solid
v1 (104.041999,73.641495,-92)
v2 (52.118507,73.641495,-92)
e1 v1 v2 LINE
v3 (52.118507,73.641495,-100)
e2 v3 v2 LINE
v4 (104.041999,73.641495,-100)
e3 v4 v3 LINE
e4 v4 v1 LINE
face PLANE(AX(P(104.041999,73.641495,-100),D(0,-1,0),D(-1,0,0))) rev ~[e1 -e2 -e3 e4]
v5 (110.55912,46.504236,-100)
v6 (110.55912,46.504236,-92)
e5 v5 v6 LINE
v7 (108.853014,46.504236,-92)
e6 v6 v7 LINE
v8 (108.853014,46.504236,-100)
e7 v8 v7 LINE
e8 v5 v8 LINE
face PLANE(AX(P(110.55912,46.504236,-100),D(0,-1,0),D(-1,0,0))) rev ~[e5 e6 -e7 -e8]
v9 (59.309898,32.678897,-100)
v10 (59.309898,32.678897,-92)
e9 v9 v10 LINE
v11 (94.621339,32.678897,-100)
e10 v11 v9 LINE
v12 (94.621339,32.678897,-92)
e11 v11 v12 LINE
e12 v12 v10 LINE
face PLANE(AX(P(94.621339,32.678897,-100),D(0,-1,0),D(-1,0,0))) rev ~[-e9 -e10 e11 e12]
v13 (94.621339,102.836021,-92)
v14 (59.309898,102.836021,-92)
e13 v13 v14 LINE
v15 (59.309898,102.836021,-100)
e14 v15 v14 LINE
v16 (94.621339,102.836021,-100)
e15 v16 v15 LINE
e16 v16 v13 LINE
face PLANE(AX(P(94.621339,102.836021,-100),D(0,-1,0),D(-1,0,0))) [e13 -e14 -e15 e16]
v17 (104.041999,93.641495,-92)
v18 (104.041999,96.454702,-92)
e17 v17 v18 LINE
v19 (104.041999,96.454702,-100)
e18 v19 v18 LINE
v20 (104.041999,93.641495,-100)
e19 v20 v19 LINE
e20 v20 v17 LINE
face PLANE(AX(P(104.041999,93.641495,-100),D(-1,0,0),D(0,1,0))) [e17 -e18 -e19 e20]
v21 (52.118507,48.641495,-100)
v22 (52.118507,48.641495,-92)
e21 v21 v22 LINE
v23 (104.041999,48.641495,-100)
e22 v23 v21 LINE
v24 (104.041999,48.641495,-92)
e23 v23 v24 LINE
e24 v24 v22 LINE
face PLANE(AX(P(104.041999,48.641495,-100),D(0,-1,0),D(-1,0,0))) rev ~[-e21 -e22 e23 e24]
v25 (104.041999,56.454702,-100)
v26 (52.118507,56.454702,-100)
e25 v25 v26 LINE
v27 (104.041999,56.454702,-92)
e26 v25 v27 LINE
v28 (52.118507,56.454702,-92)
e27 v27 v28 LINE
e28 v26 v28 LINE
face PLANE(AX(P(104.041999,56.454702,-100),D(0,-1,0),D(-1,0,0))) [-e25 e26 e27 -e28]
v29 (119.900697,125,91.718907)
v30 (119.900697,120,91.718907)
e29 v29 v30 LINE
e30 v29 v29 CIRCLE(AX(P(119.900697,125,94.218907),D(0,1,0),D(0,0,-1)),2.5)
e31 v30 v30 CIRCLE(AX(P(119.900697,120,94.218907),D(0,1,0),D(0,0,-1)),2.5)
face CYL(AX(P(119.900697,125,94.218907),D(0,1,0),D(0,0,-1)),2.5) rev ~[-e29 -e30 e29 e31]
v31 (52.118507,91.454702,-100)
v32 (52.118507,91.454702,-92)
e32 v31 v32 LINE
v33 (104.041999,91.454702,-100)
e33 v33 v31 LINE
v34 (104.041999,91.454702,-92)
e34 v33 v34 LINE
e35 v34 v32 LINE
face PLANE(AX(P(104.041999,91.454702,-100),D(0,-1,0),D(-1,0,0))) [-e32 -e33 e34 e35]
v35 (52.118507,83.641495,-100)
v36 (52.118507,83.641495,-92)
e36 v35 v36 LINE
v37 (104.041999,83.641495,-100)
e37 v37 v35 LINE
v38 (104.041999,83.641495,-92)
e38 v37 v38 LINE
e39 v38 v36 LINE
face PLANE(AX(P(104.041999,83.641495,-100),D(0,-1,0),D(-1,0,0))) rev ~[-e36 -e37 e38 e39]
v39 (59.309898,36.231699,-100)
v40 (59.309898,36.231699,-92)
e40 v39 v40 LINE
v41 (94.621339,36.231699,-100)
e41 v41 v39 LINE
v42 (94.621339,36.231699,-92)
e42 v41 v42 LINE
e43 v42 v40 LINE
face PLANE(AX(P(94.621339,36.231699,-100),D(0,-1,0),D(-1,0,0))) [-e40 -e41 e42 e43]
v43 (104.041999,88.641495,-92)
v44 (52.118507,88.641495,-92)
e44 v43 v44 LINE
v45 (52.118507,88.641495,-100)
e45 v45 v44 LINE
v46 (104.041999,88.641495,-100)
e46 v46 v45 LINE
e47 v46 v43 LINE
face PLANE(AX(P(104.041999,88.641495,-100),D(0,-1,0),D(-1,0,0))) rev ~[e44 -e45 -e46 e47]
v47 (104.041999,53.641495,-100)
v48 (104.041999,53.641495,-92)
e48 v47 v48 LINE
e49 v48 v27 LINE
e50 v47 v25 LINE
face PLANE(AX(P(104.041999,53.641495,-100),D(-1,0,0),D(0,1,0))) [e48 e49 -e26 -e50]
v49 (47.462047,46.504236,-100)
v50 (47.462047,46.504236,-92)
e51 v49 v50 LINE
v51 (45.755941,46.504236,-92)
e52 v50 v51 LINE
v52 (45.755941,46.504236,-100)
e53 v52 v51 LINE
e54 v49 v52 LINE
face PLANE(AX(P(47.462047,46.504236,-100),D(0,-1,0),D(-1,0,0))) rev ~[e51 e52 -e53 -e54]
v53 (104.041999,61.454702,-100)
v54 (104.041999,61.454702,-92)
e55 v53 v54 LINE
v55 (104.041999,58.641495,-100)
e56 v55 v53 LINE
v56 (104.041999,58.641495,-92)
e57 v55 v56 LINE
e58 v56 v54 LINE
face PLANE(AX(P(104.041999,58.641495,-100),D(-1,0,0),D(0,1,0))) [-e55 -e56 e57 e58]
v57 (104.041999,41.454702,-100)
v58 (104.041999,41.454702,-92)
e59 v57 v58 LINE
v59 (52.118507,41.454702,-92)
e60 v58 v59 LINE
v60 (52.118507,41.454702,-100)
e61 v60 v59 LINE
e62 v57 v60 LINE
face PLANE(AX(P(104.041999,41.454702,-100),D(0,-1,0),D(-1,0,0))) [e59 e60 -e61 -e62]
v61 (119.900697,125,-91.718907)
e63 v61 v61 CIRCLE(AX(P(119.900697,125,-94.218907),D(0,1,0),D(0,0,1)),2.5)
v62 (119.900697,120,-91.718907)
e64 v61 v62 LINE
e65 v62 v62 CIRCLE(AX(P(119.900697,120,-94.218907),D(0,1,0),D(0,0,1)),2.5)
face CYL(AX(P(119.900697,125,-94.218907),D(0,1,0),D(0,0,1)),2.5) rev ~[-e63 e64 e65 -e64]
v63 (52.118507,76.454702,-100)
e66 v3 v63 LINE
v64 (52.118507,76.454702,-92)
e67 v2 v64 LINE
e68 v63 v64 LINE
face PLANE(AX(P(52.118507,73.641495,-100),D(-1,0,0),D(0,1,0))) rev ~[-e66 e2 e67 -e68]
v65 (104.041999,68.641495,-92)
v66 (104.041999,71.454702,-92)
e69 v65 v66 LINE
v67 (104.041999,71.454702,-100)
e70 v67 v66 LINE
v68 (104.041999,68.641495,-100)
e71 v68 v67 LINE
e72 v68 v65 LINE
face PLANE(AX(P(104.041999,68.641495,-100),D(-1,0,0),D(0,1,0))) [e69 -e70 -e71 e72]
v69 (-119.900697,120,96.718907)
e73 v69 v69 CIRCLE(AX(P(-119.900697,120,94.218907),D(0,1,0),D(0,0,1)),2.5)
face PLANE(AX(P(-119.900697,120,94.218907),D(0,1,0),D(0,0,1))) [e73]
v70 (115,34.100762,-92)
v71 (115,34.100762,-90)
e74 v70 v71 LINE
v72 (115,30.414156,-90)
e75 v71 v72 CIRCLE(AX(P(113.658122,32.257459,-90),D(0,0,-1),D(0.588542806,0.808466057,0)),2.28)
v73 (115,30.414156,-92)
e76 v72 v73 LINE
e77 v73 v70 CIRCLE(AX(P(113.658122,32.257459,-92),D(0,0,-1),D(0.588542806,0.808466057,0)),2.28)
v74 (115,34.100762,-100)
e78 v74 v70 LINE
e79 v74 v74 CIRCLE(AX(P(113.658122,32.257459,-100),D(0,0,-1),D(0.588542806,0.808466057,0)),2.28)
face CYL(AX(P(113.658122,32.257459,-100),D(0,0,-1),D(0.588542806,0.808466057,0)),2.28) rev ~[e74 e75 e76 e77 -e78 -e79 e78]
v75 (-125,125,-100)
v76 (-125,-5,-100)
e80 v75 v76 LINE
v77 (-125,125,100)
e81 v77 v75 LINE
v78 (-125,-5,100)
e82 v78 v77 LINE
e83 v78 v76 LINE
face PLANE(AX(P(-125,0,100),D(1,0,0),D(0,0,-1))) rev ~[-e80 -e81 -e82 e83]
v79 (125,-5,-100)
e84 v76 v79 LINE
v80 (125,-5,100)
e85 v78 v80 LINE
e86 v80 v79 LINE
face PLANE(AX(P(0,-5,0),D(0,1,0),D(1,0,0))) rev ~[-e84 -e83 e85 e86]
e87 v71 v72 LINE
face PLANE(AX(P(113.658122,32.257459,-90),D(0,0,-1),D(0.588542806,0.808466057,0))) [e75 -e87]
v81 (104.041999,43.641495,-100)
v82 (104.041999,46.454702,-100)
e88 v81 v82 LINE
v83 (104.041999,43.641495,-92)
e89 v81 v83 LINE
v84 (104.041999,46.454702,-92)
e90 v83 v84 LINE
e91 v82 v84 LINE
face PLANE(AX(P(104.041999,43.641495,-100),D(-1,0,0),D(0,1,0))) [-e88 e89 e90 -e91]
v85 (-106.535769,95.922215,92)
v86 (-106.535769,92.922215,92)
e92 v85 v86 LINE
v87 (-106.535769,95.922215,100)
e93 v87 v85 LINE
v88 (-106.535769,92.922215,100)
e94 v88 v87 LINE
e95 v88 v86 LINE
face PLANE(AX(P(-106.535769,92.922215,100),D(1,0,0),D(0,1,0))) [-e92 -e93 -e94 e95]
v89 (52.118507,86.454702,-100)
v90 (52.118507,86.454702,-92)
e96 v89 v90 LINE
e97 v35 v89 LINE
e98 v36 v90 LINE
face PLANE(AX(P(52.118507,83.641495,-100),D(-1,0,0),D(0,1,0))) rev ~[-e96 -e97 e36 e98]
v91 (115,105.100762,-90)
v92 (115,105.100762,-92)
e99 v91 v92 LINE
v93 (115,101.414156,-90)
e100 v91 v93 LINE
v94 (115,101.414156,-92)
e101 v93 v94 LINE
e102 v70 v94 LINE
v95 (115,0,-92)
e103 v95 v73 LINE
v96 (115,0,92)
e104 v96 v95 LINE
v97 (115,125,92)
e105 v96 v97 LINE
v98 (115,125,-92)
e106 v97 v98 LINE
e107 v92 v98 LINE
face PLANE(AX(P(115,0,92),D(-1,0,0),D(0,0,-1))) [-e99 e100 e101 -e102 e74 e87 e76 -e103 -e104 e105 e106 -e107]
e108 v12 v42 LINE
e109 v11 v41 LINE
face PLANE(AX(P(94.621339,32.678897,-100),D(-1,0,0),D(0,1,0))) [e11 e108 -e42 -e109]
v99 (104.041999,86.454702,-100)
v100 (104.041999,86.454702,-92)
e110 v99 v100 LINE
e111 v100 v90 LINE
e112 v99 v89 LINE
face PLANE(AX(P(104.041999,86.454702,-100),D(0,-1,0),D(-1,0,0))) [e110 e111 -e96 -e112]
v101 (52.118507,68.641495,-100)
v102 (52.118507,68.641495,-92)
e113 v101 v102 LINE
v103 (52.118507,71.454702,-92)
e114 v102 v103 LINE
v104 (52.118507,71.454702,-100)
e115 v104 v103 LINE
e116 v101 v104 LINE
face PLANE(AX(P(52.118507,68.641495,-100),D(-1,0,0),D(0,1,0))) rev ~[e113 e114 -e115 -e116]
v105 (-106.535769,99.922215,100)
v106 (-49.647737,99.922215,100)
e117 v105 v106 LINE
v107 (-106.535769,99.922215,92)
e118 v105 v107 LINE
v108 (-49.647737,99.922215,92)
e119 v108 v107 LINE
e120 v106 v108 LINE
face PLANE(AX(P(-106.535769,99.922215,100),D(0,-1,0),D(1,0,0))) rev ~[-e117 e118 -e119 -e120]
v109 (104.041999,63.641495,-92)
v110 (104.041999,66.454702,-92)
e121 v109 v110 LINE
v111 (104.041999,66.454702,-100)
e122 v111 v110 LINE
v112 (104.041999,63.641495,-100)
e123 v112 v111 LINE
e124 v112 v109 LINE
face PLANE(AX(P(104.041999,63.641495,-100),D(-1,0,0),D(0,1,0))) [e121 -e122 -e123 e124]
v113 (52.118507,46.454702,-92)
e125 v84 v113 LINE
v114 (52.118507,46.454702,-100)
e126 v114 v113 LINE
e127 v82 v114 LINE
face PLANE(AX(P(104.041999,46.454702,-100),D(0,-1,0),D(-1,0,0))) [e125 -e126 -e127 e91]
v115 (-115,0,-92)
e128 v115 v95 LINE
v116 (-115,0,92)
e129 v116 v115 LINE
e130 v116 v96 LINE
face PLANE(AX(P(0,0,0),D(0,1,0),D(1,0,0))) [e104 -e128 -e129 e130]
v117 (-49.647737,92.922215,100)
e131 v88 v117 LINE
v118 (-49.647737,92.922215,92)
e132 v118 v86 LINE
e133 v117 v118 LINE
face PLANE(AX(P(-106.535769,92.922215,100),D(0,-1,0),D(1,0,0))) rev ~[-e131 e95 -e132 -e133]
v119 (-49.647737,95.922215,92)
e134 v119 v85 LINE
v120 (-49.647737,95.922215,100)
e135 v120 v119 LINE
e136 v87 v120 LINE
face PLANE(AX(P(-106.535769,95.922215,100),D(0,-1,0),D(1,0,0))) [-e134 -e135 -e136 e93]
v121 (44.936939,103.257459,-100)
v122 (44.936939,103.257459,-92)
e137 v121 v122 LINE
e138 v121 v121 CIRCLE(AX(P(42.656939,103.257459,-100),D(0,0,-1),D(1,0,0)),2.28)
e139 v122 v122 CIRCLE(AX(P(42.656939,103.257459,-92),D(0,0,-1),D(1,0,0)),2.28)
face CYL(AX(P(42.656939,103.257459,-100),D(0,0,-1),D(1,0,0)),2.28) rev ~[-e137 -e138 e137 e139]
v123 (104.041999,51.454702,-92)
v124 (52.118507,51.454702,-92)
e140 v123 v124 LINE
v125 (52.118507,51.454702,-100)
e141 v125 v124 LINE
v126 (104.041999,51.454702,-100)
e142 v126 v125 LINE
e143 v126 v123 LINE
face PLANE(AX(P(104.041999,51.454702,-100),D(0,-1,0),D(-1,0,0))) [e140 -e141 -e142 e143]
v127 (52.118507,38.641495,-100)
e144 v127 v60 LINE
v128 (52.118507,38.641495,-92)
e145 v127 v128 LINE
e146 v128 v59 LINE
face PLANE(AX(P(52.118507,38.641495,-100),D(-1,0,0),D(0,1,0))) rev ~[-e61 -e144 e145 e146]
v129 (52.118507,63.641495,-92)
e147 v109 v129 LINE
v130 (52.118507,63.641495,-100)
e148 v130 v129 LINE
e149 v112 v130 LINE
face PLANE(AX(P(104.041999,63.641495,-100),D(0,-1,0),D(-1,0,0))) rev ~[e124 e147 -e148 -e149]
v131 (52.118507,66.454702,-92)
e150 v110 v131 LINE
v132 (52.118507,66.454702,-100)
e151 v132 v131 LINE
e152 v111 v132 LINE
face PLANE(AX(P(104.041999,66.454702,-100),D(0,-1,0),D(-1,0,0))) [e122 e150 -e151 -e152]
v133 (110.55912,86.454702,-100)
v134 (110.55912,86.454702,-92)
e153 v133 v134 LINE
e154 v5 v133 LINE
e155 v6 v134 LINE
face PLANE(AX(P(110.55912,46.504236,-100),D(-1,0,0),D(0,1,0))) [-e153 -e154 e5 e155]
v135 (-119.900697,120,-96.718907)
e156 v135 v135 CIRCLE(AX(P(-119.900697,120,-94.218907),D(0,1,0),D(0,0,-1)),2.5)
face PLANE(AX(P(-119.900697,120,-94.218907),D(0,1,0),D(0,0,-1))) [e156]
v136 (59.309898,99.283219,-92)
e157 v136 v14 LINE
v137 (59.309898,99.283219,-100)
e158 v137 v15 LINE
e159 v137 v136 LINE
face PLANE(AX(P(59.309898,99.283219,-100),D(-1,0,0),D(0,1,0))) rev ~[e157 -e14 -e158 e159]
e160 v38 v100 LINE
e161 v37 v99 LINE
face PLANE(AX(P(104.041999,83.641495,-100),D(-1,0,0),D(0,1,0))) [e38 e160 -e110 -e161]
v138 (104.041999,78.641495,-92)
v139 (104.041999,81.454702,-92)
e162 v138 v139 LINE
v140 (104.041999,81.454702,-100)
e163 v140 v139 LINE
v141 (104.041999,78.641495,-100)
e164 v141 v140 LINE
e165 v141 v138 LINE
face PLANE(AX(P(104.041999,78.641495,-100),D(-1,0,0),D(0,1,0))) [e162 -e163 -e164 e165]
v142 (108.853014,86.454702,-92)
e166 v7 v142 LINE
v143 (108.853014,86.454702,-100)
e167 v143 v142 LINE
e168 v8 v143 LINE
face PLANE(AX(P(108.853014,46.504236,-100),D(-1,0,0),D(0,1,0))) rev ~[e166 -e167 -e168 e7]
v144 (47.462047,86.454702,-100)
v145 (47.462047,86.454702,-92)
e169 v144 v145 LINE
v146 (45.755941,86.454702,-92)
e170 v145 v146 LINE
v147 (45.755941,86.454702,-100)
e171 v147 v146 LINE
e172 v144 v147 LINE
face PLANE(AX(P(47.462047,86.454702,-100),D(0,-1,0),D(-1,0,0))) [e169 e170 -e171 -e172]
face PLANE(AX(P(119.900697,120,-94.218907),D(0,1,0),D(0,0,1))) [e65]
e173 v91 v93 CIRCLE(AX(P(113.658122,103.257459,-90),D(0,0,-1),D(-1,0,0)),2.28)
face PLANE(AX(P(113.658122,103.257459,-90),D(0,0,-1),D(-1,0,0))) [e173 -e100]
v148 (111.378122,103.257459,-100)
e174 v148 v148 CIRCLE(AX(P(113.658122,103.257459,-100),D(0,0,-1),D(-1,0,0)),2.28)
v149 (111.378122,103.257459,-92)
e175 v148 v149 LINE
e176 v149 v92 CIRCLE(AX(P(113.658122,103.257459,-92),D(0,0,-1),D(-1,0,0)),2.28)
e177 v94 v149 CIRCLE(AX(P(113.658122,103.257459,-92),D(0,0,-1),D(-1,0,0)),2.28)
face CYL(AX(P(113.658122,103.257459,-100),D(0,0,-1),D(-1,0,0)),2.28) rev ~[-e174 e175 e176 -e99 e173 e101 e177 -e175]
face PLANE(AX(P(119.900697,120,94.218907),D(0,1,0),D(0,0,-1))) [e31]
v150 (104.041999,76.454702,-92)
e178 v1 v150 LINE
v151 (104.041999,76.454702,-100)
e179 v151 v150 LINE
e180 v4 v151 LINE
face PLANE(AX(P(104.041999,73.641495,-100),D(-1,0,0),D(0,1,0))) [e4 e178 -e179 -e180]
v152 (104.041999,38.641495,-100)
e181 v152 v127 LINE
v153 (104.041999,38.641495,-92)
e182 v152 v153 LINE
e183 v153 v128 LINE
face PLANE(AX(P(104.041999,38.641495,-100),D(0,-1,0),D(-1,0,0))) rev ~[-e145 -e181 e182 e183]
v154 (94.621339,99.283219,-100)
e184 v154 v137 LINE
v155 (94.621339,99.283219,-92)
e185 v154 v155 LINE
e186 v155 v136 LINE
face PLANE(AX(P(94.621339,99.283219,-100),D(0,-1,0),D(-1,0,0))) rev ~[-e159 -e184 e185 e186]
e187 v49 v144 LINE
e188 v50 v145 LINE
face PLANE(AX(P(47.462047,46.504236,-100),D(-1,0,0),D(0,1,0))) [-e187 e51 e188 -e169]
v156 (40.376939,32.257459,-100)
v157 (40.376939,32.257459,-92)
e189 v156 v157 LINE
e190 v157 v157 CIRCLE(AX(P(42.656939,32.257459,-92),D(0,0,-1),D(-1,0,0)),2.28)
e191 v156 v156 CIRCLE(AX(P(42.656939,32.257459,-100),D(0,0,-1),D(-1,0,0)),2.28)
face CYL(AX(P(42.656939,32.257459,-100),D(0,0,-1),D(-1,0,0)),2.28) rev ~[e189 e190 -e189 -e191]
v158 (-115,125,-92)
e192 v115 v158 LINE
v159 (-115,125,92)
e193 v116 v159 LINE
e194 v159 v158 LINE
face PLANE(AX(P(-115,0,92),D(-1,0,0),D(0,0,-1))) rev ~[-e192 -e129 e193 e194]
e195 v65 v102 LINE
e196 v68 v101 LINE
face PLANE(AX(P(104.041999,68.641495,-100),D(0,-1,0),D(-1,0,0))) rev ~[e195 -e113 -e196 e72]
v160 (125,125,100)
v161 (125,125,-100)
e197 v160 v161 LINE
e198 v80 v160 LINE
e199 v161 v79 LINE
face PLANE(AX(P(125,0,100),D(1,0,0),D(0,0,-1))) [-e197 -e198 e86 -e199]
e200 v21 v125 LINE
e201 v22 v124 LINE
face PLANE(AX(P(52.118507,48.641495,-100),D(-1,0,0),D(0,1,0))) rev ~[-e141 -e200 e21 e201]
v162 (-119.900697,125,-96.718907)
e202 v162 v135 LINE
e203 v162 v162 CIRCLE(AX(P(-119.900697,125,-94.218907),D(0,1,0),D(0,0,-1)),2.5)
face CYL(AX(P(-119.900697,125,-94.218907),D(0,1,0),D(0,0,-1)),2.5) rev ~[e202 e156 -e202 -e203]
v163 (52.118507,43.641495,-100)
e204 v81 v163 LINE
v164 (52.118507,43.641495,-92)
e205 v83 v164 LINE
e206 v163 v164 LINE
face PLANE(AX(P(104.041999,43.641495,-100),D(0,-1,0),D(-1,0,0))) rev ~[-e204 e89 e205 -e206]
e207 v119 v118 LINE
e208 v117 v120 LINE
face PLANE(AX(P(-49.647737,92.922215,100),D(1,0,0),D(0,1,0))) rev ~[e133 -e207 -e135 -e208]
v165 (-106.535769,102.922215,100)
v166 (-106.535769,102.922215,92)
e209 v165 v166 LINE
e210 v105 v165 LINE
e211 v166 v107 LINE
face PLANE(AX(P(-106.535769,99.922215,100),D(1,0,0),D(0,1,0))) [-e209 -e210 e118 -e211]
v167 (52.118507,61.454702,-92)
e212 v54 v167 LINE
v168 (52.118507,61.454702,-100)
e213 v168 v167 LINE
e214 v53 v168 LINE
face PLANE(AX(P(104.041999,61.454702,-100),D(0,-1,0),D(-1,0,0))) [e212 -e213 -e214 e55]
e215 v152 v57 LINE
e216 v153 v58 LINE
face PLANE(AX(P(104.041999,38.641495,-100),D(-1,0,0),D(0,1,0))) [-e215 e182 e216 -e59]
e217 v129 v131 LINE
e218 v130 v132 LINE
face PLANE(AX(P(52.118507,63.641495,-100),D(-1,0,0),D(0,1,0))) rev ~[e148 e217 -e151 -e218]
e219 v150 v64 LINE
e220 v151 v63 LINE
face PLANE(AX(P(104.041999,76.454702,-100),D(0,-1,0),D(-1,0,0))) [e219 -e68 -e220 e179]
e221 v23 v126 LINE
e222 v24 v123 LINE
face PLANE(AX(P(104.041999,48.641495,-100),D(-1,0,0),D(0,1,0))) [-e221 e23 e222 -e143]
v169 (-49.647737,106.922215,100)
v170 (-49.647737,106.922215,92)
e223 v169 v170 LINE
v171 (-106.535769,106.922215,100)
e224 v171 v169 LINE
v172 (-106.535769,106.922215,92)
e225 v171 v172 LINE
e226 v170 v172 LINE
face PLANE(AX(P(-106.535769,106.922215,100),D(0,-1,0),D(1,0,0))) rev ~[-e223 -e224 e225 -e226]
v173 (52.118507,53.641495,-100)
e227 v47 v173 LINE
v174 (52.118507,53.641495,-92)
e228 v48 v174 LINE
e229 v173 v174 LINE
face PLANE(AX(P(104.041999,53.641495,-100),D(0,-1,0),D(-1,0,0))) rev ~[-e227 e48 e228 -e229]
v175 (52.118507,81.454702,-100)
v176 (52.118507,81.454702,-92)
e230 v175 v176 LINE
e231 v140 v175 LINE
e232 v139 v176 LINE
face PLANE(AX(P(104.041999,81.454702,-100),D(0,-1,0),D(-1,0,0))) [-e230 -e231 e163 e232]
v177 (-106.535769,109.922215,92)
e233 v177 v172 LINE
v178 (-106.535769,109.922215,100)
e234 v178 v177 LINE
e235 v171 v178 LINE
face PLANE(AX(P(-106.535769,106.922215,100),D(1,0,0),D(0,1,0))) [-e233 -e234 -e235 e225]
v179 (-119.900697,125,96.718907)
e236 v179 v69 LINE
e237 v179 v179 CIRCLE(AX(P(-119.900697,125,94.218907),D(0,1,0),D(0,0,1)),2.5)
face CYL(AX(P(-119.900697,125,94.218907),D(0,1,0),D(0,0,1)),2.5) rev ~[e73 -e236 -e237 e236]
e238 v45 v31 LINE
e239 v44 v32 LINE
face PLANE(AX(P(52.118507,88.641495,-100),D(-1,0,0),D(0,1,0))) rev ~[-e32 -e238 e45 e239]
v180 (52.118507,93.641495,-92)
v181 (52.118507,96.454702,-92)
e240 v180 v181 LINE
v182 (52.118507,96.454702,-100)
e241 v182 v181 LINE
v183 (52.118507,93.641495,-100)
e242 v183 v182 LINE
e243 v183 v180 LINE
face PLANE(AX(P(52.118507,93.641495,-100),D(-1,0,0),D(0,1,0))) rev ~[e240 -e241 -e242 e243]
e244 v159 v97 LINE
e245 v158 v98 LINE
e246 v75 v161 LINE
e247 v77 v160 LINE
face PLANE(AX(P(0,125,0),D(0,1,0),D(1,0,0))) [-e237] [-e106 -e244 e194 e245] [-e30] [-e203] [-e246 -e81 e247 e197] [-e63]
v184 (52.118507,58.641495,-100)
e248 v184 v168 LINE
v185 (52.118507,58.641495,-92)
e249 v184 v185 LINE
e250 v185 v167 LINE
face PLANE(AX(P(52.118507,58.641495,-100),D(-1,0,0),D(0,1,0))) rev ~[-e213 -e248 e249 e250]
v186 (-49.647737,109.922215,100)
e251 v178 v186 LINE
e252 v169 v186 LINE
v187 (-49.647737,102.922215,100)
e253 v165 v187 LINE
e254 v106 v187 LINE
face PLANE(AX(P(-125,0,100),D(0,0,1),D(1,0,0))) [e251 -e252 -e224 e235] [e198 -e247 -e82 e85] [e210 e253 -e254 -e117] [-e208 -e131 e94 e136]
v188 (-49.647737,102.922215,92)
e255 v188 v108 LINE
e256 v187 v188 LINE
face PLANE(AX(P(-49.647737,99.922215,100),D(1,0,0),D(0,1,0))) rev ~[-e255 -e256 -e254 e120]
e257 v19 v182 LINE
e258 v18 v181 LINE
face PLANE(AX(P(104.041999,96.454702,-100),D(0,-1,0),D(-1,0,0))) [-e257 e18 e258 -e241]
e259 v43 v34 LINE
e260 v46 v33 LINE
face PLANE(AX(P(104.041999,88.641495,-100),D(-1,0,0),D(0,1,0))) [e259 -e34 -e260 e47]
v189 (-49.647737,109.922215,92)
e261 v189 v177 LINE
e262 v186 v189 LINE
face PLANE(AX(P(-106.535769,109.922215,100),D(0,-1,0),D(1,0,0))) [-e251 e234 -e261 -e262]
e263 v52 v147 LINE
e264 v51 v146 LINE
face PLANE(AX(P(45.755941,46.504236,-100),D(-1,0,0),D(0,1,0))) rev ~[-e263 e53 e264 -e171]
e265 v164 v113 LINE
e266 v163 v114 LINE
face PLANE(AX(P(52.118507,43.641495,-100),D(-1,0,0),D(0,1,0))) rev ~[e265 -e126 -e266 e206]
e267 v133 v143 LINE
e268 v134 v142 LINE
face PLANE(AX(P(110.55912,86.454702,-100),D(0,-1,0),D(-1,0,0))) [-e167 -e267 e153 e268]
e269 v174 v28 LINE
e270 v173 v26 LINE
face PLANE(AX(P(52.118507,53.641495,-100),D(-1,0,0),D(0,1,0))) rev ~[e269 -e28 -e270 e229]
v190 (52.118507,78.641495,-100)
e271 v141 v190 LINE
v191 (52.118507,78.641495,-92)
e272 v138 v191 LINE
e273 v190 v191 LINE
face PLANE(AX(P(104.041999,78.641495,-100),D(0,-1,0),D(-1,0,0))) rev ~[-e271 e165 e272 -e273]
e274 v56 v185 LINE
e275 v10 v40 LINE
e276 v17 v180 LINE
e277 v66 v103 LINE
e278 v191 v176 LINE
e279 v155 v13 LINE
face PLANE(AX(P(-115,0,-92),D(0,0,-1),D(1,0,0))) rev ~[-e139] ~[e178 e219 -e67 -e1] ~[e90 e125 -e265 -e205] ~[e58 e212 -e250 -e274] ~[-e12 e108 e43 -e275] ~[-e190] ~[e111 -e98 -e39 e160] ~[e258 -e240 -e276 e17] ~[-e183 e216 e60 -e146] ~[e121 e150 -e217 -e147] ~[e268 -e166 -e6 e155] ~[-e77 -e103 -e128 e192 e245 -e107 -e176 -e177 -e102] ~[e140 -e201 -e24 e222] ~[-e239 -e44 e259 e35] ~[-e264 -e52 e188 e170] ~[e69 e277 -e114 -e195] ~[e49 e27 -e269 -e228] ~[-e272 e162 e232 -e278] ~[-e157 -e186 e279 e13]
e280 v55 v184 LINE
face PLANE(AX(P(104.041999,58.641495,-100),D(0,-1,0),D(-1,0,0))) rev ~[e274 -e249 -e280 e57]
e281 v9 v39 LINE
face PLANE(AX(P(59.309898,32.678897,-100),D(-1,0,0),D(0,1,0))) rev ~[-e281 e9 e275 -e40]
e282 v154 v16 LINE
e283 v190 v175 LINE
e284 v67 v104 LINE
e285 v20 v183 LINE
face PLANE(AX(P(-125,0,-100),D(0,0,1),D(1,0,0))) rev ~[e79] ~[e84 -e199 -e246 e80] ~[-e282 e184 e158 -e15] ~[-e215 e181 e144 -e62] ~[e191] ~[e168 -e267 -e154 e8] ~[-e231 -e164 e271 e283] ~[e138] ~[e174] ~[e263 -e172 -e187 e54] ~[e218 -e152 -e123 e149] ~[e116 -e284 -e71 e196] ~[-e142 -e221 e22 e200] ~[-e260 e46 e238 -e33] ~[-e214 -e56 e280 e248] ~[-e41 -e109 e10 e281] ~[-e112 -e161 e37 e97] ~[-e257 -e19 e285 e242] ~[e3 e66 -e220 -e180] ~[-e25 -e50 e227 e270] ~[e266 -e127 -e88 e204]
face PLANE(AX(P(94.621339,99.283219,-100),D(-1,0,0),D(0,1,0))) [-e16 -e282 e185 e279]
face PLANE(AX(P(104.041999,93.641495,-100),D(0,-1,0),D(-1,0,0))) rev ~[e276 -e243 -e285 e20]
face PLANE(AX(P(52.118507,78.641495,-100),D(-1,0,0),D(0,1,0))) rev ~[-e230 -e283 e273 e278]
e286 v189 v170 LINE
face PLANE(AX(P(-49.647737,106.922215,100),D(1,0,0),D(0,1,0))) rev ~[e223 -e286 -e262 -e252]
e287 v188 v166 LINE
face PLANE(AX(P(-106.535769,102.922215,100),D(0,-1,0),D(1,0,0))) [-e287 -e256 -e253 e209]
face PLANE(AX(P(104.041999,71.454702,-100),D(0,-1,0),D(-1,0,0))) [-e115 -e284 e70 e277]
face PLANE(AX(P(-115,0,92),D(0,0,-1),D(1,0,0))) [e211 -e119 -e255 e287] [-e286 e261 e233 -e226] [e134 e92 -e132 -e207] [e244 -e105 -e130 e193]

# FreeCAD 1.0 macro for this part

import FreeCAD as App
import Part
import Sketcher
from FreeCAD import Vector

doc = App.newDocument("Part")
body = doc.addObject("PartDesign::Body", "Body")

sketch1 = body.newObject("Sketcher::SketchObject", "Sketch")
sketch1.AttachmentSupport = (doc.getObject("XZ_Plane"), [""])
sketch1.MapMode = "FlatFace"
sketch1.addGeometry([
    Part.LineSegment(Vector(-125, -100, 0), Vector(-125, 100, 0)),
    Part.LineSegment(Vector(-125, 100, 0), Vector(125, 100, 0)),
    Part.LineSegment(Vector(125, 100, 0), Vector(125, -100, 0)),
    Part.LineSegment(Vector(125, -100, 0), Vector(-125, -100, 0)),
    Part.LineSegment(Vector(115, 92, 0), Vector(-115, 92, 0)),
    Part.LineSegment(Vector(-115, 92, 0), Vector(-115, -92, 0)),
    Part.LineSegment(Vector(-115, -92, 0), Vector(115, -92, 0)),
    Part.LineSegment(Vector(115, -92, 0), Vector(115, 92, 0)),
], False)
sketch1.addConstraint([
    Sketcher.Constraint("Coincident", 0, 2, 1, 1),
    Sketcher.Constraint("Coincident", 1, 2, 2, 1),
    Sketcher.Constraint("Coincident", 2, 2, 3, 1),
    Sketcher.Constraint("Coincident", 3, 2, 0, 1),
    Sketcher.Constraint("Coincident", 4, 2, 5, 1),
    Sketcher.Constraint("Coincident", 5, 2, 6, 1),
    Sketcher.Constraint("Coincident", 6, 2, 7, 1),
    Sketcher.Constraint("Coincident", 7, 2, 4, 1),
    Sketcher.Constraint("Vertical", 0),
    Sketcher.Constraint("Horizontal", 1),
    Sketcher.Constraint("Vertical", 2),
    Sketcher.Constraint("Horizontal", 3),
    Sketcher.Constraint("Horizontal", 4),
    Sketcher.Constraint("Vertical", 5),
    Sketcher.Constraint("Horizontal", 6),
    Sketcher.Constraint("Vertical", 7),
    Sketcher.Constraint("Symmetric", 0, 2, 2, 2, -1, 1),
    Sketcher.Constraint("Symmetric", 4, 2, 6, 2, -1, 1),
    Sketcher.Constraint("DistanceX", 1, 1, 1, 2, 250.0),
    Sketcher.Constraint("DistanceX", 4, 2, 4, 1, 230.0),
    Sketcher.Constraint("DistanceY", 0, 1, 0, 2, 200.0),
    Sketcher.Constraint("DistanceY", 5, 2, 5, 1, 184.0),
])
pad1 = body.newObject("PartDesign::Pad", "Pad")
pad1.Profile = sketch1
pad1.Length = 125
pad1.Reversed = True

sketch2 = body.newObject("Sketcher::SketchObject", "Sketch001")
sketch2.AttachmentSupport = (doc.getObject("XZ_Plane"), [""])
sketch2.MapMode = "FlatFace"
sketch2.addGeometry([
    Part.LineSegment(Vector(-125, -100, 0), Vector(-125, 100, 0)),
    Part.LineSegment(Vector(-125, 100, 0), Vector(125, 100, 0)),
    Part.LineSegment(Vector(125, 100, 0), Vector(125, -100, 0)),
    Part.LineSegment(Vector(125, -100, 0), Vector(-125, -100, 0)),
], False)
sketch2.addConstraint([
    Sketcher.Constraint("Coincident", 0, 2, 1, 1),
    Sketcher.Constraint("Coincident", 1, 2, 2, 1),
    Sketcher.Constraint("Coincident", 2, 2, 3, 1),
    Sketcher.Constraint("Coincident", 3, 2, 0, 1),
    Sketcher.Constraint("Vertical", 0),
    Sketcher.Constraint("Horizontal", 1),
    Sketcher.Constraint("Vertical", 2),
    Sketcher.Constraint("Horizontal", 3),
    Sketcher.Constraint("Symmetric", 0, 2, 2, 2, -1, 1),
    Sketcher.Constraint("DistanceX", 1, 1, 1, 2, 250.0),
    Sketcher.Constraint("DistanceY", 0, 1, 0, 2, 200.0),
])
pad2 = body.newObject("PartDesign::Pad", "Pad001")
pad2.Profile = sketch2
pad2.Length = 5

sketch3 = body.newObject("Sketcher::SketchObject", "Sketch002")
sketch3.AttachmentSupport = (doc.getObject("XZ_Plane"), [""])
sketch3.MapMode = "FlatFace"
sketch3.AttachmentOffset = App.Placement(Vector(0, 0, -125), App.Rotation())
sketch3.addGeometry([
    Part.Circle(Vector(-119.9, 94.2, 0), Vector(0, 0, 1), 2.5),
    Part.Circle(Vector(-119.9, -94.2, 0), Vector(0, 0, 1), 2.5),
    Part.Circle(Vector(119.9, -94.2, 0), Vector(0, 0, 1), 2.5),
    Part.Circle(Vector(119.9, 94.2, 0), Vector(0, 0, 1), 2.5),
], False)
sketch3.addConstraint([
    Sketcher.Constraint("Equal", 0, 1),
    Sketcher.Constraint("Equal", 1, 2),
    Sketcher.Constraint("Equal", 2, 3),
    Sketcher.Constraint("Symmetric", 0, 3, 2, 3, -1, 1),
    Sketcher.Constraint("Symmetric", 1, 3, 3, 3, -1, 1),
    Sketcher.Constraint("Symmetric", 1, 3, 2, 3, -2),
    Sketcher.Constraint("Diameter", 0, 5.0),
    Sketcher.Constraint("DistanceX", 0, 3, -1, 1, 119.900697),
    Sketcher.Constraint("DistanceY", -1, 1, 0, 3, 94.218907),
])
pocket1 = body.newObject("PartDesign::Pocket", "Pocket")
pocket1.Profile = sketch3
pocket1.Length = 5
pocket1.Reversed = True

sketch4 = body.newObject("Sketcher::SketchObject", "Sketch003")
sketch4.AttachmentSupport = (doc.getObject("XY_Plane"), [""])
sketch4.MapMode = "FlatFace"
sketch4.AttachmentOffset = App.Placement(Vector(0, 0, 100), App.Rotation())
sketch4.addGeometry([
    Part.LineSegment(Vector(-106.5, 109.9, 0), Vector(-106.5, 106.9, 0)),
    Part.LineSegment(Vector(-106.5, 106.9, 0), Vector(-49.6, 106.9, 0)),
    Part.LineSegment(Vector(-49.6, 106.9, 0), Vector(-49.6, 109.9, 0)),
    Part.LineSegment(Vector(-49.6, 109.9, 0), Vector(-106.5, 109.9, 0)),
    Part.LineSegment(Vector(-106.5, 102.9, 0), Vector(-106.5, 99.9, 0)),
    Part.LineSegment(Vector(-106.5, 99.9, 0), Vector(-49.6, 99.9, 0)),
    Part.LineSegment(Vector(-49.6, 99.9, 0), Vector(-49.6, 102.9, 0)),
    Part.LineSegment(Vector(-49.6, 102.9, 0), Vector(-106.5, 102.9, 0)),
    Part.LineSegment(Vector(-106.5, 95.9, 0), Vector(-106.5, 92.9, 0)),
    Part.LineSegment(Vector(-106.5, 92.9, 0), Vector(-49.6, 92.9, 0)),
    Part.LineSegment(Vector(-49.6, 92.9, 0), Vector(-49.6, 95.9, 0)),
    Part.LineSegment(Vector(-49.6, 95.9, 0), Vector(-106.5, 95.9, 0)),
], False)
sketch4.addConstraint([
    Sketcher.Constraint("Coincident", 0, 2, 1, 1),
    Sketcher.Constraint("Coincident", 1, 2, 2, 1),
    Sketcher.Constraint("Coincident", 2, 2, 3, 1),
    Sketcher.Constraint("Coincident", 3, 2, 0, 1),
    Sketcher.Constraint("Coincident", 4, 2, 5, 1),
    Sketcher.Constraint("Coincident", 5, 2, 6, 1),
    Sketcher.Constraint("Coincident", 6, 2, 7, 1),
    Sketcher.Constraint("Coincident", 7, 2, 4, 1),
    Sketcher.Constraint("Coincident", 8, 2, 9, 1),
    Sketcher.Constraint("Coincident", 9, 2, 10, 1),
    Sketcher.Constraint("Coincident", 10, 2, 11, 1),
    Sketcher.Constraint("Coincident", 11, 2, 8, 1),
    Sketcher.Constraint("Vertical", 0),
    Sketcher.Constraint("Horizontal", 1),
    Sketcher.Constraint("Vertical", 2),
    Sketcher.Constraint("Horizontal", 3),
    Sketcher.Constraint("Vertical", 4),
    Sketcher.Constraint("Horizontal", 5),
    Sketcher.Constraint("Vertical", 6),
    Sketcher.Constraint("Horizontal", 7),
    Sketcher.Constraint("Vertical", 8),
    Sketcher.Constraint("Horizontal", 9),
    Sketcher.Constraint("Vertical", 10),
    Sketcher.Constraint("Horizontal", 11),
    Sketcher.Constraint("Vertical", 3, 2, 4, 2),
    Sketcher.Constraint("Vertical", 2, 2, 5, 2),
    Sketcher.Constraint("Vertical", 7, 2, 8, 2),
    Sketcher.Constraint("Vertical", 6, 2, 9, 2),
    Sketcher.Constraint("Equal", 2, 4),
    Sketcher.Constraint("Equal", 6, 8),
    Sketcher.Constraint("DistanceY", 0, 2, 0, 1, 3.0),
    Sketcher.Constraint("DistanceY", 4, 2, 0, 2, 7.0),
    Sketcher.Constraint("DistanceY", 8, 2, 4, 2, 7.0),
    Sketcher.Constraint("DistanceX", 1, 1, 1, 2, 56.888032),
    Sketcher.Constraint("DistanceX", 0, 2, -1, 1, 106.535769),
    Sketcher.Constraint("DistanceY", -1, 1, 0, 2, 106.922215),
])
pocket2 = body.newObject("PartDesign::Pocket", "Pocket001")
pocket2.Profile = sketch4
pocket2.Length = 10

sketch5 = body.newObject("Sketcher::SketchObject", "Sketch004")
sketch5.AttachmentSupport = (doc.getObject("XY_Plane"), [""])
sketch5.MapMode = "FlatFace"
sketch5.AttachmentOffset = App.Placement(Vector(0, 0, -100), App.Rotation())
sketch5.addGeometry([
    Part.Circle(Vector(42.7, 32.3, 0), Vector(0, 0, 1), 2.3),
    Part.Circle(Vector(113.7, 103.3, 0), Vector(0, 0, 1), 2.3),
    Part.Circle(Vector(42.7, 103.3, 0), Vector(0, 0, 1), 2.3),
    Part.Circle(Vector(113.7, 32.3, 0), Vector(0, 0, 1), 2.3),
], False)
sketch5.addConstraint([
    Sketcher.Constraint("Equal", 0, 1),
    Sketcher.Constraint("Equal", 1, 2),
    Sketcher.Constraint("Equal", 2, 3),
    Sketcher.Constraint("Horizontal", 1, 3, 2, 3),
    Sketcher.Constraint("Horizontal", 0, 3, 3, 3),
    Sketcher.Constraint("Vertical", 0, 3, 2, 3),
    Sketcher.Constraint("Vertical", 1, 3, 3, 3),
    Sketcher.Constraint("Diameter", 0, 4.56),
    Sketcher.Constraint("DistanceY", 0, 3, 1, 3, 71.0),
    Sketcher.Constraint("DistanceX", -1, 1, 0, 3, 42.656939),
    Sketcher.Constraint("DistanceY", -1, 1, 0, 3, 32.257459),
    Sketcher.Constraint("DistanceX", -1, 1, 1, 3, 113.658122),
])
pocket3 = body.newObject("PartDesign::Pocket", "Pocket002")
pocket3.Profile = sketch5
pocket3.Length = 10
pocket3.Reversed = True

sketch6 = body.newObject("Sketcher::SketchObject", "Sketch005")
sketch6.AttachmentSupport = (doc.getObject("XY_Plane"), [""])
sketch6.MapMode = "FlatFace"
sketch6.AttachmentOffset = App.Placement(Vector(0, 0, -100), App.Rotation())
sketch6.addGeometry([
    Part.LineSegment(Vector(104, 91.5, 0), Vector(104, 88.6, 0)),
    Part.LineSegment(Vector(104, 88.6, 0), Vector(52.1, 88.6, 0)),
    Part.LineSegment(Vector(52.1, 88.6, 0), Vector(52.1, 91.5, 0)),
    Part.LineSegment(Vector(52.1, 91.5, 0), Vector(104, 91.5, 0)),
    Part.LineSegment(Vector(104, 96.5, 0), Vector(104, 93.6, 0)),
    Part.LineSegment(Vector(104, 93.6, 0), Vector(52.1, 93.6, 0)),
    Part.LineSegment(Vector(52.1, 93.6, 0), Vector(52.1, 96.5, 0)),
    Part.LineSegment(Vector(52.1, 96.5, 0), Vector(104, 96.5, 0)),
    Part.LineSegment(Vector(104, 86.5, 0), Vector(104, 83.6, 0)),
    Part.LineSegment(Vector(104, 83.6, 0), Vector(52.1, 83.6, 0)),
    Part.LineSegment(Vector(52.1, 83.6, 0), Vector(52.1, 86.5, 0)),
    Part.LineSegment(Vector(52.1, 86.5, 0), Vector(104, 86.5, 0)),
    Part.LineSegment(Vector(104, 81.5, 0), Vector(104, 78.6, 0)),
    Part.LineSegment(Vector(104, 78.6, 0), Vector(52.1, 78.6, 0)),
    Part.LineSegment(Vector(52.1, 78.6, 0), Vector(52.1, 81.5, 0)),
    Part.LineSegment(Vector(52.1, 81.5, 0), Vector(104, 81.5, 0)),
    Part.LineSegment(Vector(104, 76.5, 0), Vector(104, 73.6, 0)),
    Part.LineSegment(Vector(104, 73.6, 0), Vector(52.1, 73.6, 0)),
    Part.LineSegment(Vector(52.1, 73.6, 0), Vector(52.1, 76.5, 0)),
    Part.LineSegment(Vector(52.1, 76.5, 0), Vector(104, 76.5, 0)),
    Part.LineSegment(Vector(104, 71.5, 0), Vector(104, 68.6, 0)),
    Part.LineSegment(Vector(104, 68.6, 0), Vector(52.1, 68.6, 0)),
    Part.LineSegment(Vector(52.1, 68.6, 0), Vector(52.1, 71.5, 0)),
    Part.LineSegment(Vector(52.1, 71.5, 0), Vector(104, 71.5, 0)),
    Part.LineSegment(Vector(104, 66.5, 0), Vector(104, 63.6, 0)),
    Part.LineSegment(Vector(104, 63.6, 0), Vector(52.1, 63.6, 0)),
    Part.LineSegment(Vector(52.1, 63.6, 0), Vector(52.1, 66.5, 0)),
    Part.LineSegment(Vector(52.1, 66.5, 0), Vector(104, 66.5, 0)),
    Part.LineSegment(Vector(104, 61.5, 0), Vector(104, 58.6, 0)),
    Part.LineSegment(Vector(104, 58.6, 0), Vector(52.1, 58.6, 0)),
    Part.LineSegment(Vector(52.1, 58.6, 0), Vector(52.1, 61.5, 0)),
    Part.LineSegment(Vector(52.1, 61.5, 0), Vector(104, 61.5, 0)),
    Part.LineSegment(Vector(104, 56.5, 0), Vector(104, 53.6, 0)),
    Part.LineSegment(Vector(104, 53.6, 0), Vector(52.1, 53.6, 0)),
    Part.LineSegment(Vector(52.1, 53.6, 0), Vector(52.1, 56.5, 0)),
    Part.LineSegment(Vector(52.1, 56.5, 0), Vector(104, 56.5, 0)),
    Part.LineSegment(Vector(104, 51.5, 0), Vector(104, 48.6, 0)),
    Part.LineSegment(Vector(104, 48.6, 0), Vector(52.1, 48.6, 0)),
    Part.LineSegment(Vector(52.1, 48.6, 0), Vector(52.1, 51.5, 0)),
    Part.LineSegment(Vector(52.1, 51.5, 0), Vector(104, 51.5, 0)),
    Part.LineSegment(Vector(104, 46.5, 0), Vector(104, 43.6, 0)),
    Part.LineSegment(Vector(104, 43.6, 0), Vector(52.1, 43.6, 0)),
    Part.LineSegment(Vector(52.1, 43.6, 0), Vector(52.1, 46.5, 0)),
    Part.LineSegment(Vector(52.1, 46.5, 0), Vector(104, 46.5, 0)),
    Part.LineSegment(Vector(104, 41.5, 0), Vector(104, 38.6, 0)),
    Part.LineSegment(Vector(104, 38.6, 0), Vector(52.1, 38.6, 0)),
    Part.LineSegment(Vector(52.1, 38.6, 0), Vector(52.1, 41.5, 0)),
    Part.LineSegment(Vector(52.1, 41.5, 0), Vector(104, 41.5, 0)),
    Part.LineSegment(Vector(110.6, 86.5, 0), Vector(110.6, 46.5, 0)),
    Part.LineSegment(Vector(110.6, 46.5, 0), Vector(108.9, 46.5, 0)),
    Part.LineSegment(Vector(108.9, 46.5, 0), Vector(108.9, 86.5, 0)),
    Part.LineSegment(Vector(108.9, 86.5, 0), Vector(110.6, 86.5, 0)),
    Part.LineSegment(Vector(47.5, 86.5, 0), Vector(47.5, 46.5, 0)),
    Part.LineSegment(Vector(47.5, 46.5, 0), Vector(45.8, 46.5, 0)),
    Part.LineSegment(Vector(45.8, 46.5, 0), Vector(45.8, 86.5, 0)),
    Part.LineSegment(Vector(45.8, 86.5, 0), Vector(47.5, 86.5, 0)),
    Part.LineSegment(Vector(94.6, 102.8, 0), Vector(94.6, 99.3, 0)),
    Part.LineSegment(Vector(94.6, 99.3, 0), Vector(59.3, 99.3, 0)),
    Part.LineSegment(Vector(59.3, 99.3, 0), Vector(59.3, 102.8, 0)),
    Part.LineSegment(Vector(59.3, 102.8, 0), Vector(94.6, 102.8, 0)),
    Part.LineSegment(Vector(94.6, 36.2, 0), Vector(94.6, 32.7, 0)),
    Part.LineSegment(Vector(94.6, 32.7, 0), Vector(59.3, 32.7, 0)),
    Part.LineSegment(Vector(59.3, 32.7, 0), Vector(59.3, 36.2, 0)),
    Part.LineSegment(Vector(59.3, 36.2, 0), Vector(94.6, 36.2, 0)),
], False)
sketch6.addConstraint([
    Sketcher.Constraint("Coincident", 0, 2, 1, 1),
    Sketcher.Constraint("Coincident", 1, 2, 2, 1),
    Sketcher.Constraint("Coincident", 2, 2, 3, 1),
    Sketcher.Constraint("Coincident", 3, 2, 0, 1),
    Sketcher.Constraint("Coincident", 4, 2, 5, 1),
    Sketcher.Constraint("Coincident", 5, 2, 6, 1),
    Sketcher.Constraint("Coincident", 6, 2, 7, 1),
    Sketcher.Constraint("Coincident", 7, 2, 4, 1),
    Sketcher.Constraint("Coincident", 8, 2, 9, 1),
    Sketcher.Constraint("Coincident", 9, 2, 10, 1),
    Sketcher.Constraint("Coincident", 10, 2, 11, 1),
    Sketcher.Constraint("Coincident", 11, 2, 8, 1),
    Sketcher.Constraint("Coincident", 12, 2, 13, 1),
    Sketcher.Constraint("Coincident", 13, 2, 14, 1),
    Sketcher.Constraint("Coincident", 14, 2, 15, 1),
    Sketcher.Constraint("Coincident", 15, 2, 12, 1),
    Sketcher.Constraint("Coincident", 16, 2, 17, 1),
    Sketcher.Constraint("Coincident", 17, 2, 18, 1),
    Sketcher.Constraint("Coincident", 18, 2, 19, 1),
    Sketcher.Constraint("Coincident", 19, 2, 16, 1),
    Sketcher.Constraint("Coincident", 20, 2, 21, 1),
    Sketcher.Constraint("Coincident", 21, 2, 22, 1),
    Sketcher.Constraint("Coincident", 22, 2, 23, 1),
    Sketcher.Constraint("Coincident", 23, 2, 20, 1),
    Sketcher.Constraint("Coincident", 24, 2, 25, 1),
    Sketcher.Constraint("Coincident", 25, 2, 26, 1),
    Sketcher.Constraint("Coincident", 26, 2, 27, 1),
    Sketcher.Constraint("Coincident", 27, 2, 24, 1),
    Sketcher.Constraint("Coincident", 28, 2, 29, 1),
    Sketcher.Constraint("Coincident", 29, 2, 30, 1),
    Sketcher.Constraint("Coincident", 30, 2, 31, 1),
    Sketcher.Constraint("Coincident", 31, 2, 28, 1),
    Sketcher.Constraint("Coincident", 32, 2, 33, 1),
    Sketcher.Constraint("Coincident", 33, 2, 34, 1),
    Sketcher.Constraint("Coincident", 34, 2, 35, 1),
    Sketcher.Constraint("Coincident", 35, 2, 32, 1),
    Sketcher.Constraint("Coincident", 36, 2, 37, 1),
    Sketcher.Constraint("Coincident", 37, 2, 38, 1),
    Sketcher.Constraint("Coincident", 38, 2, 39, 1),
    Sketcher.Constraint("Coincident", 39, 2, 36, 1),
    Sketcher.Constraint("Coincident", 40, 2, 41, 1),
    Sketcher.Constraint("Coincident", 41, 2, 42, 1),
    Sketcher.Constraint("Coincident", 42, 2, 43, 1),
    Sketcher.Constraint("Coincident", 43, 2, 40, 1),
    Sketcher.Constraint("Coincident", 44, 2, 45, 1),
    Sketcher.Constraint("Coincident", 45, 2, 46, 1),
    Sketcher.Constraint("Coincident", 46, 2, 47, 1),
    Sketcher.Constraint("Coincident", 47, 2, 44, 1),
    Sketcher.Constraint("Coincident", 48, 2, 49, 1),
    Sketcher.Constraint("Coincident", 49, 2, 50, 1),
    Sketcher.Constraint("Coincident", 50, 2, 51, 1),
    Sketcher.Constraint("Coincident", 51, 2, 48, 1),
    Sketcher.Constraint("Coincident", 52, 2, 53, 1),
    Sketcher.Constraint("Coincident", 53, 2, 54, 1),
    Sketcher.Constraint("Coincident", 54, 2, 55, 1),
    Sketcher.Constraint("Coincident", 55, 2, 52, 1),
    Sketcher.Constraint("Coincident", 56, 2, 57, 1),
    Sketcher.Constraint("Coincident", 57, 2, 58, 1),
    Sketcher.Constraint("Coincident", 58, 2, 59, 1),
    Sketcher.Constraint("Coincident", 59, 2, 56, 1),
    Sketcher.Constraint("Coincident", 60, 2, 61, 1),
    Sketcher.Constraint("Coincident", 61, 2, 62, 1),
    Sketcher.Constraint("Coincident", 62, 2, 63, 1),
    Sketcher.Constraint("Coincident", 63, 2, 60, 1),
    Sketcher.Constraint("Vertical", 0),
    Sketcher.Constraint("Horizontal", 1),
    Sketcher.Constraint("Vertical", 2),
    Sketcher.Constraint("Horizontal", 3),
    Sketcher.Constraint("Vertical", 4),
    Sketcher.Constraint("Horizontal", 5),
    Sketcher.Constraint("Vertical", 6),
    Sketcher.Constraint("Horizontal", 7),
    Sketcher.Constraint("Vertical", 8),
    Sketcher.Constraint("Horizontal", 9),
    Sketcher.Constraint("Vertical", 10),
    Sketcher.Constraint("Horizontal", 11),
    Sketcher.Constraint("Vertical", 12),
    Sketcher.Constraint("Horizontal", 13),
    Sketcher.Constraint("Vertical", 14),
    Sketcher.Constraint("Horizontal", 15),
    Sketcher.Constraint("Vertical", 16),
    Sketcher.Constraint("Horizontal", 17),
    Sketcher.Constraint("Vertical", 18),
    Sketcher.Constraint("Horizontal", 19),
    Sketcher.Constraint("Vertical", 20),
    Sketcher.Constraint("Horizontal", 21),
    Sketcher.Constraint("Vertical", 22),
    Sketcher.Constraint("Horizontal", 23),
    Sketcher.Constraint("Vertical", 24),
    Sketcher.Constraint("Horizontal", 25),
    Sketcher.Constraint("Vertical", 26),
    Sketcher.Constraint("Horizontal", 27),
    Sketcher.Constraint("Vertical", 28),
    Sketcher.Constraint("Horizontal", 29),
    Sketcher.Constraint("Vertical", 30),
    Sketcher.Constraint("Horizontal", 31),
    Sketcher.Constraint("Vertical", 32),
    Sketcher.Constraint("Horizontal", 33),
    Sketcher.Constraint("Vertical", 34),
    Sketcher.Constraint("Horizontal", 35),
    Sketcher.Constraint("Vertical", 36),
    Sketcher.Constraint("Horizontal", 37),
    Sketcher.Constraint("Vertical", 38),
    Sketcher.Constraint("Horizontal", 39),
    Sketcher.Constraint("Vertical", 40),
    Sketcher.Constraint("Horizontal", 41),
    Sketcher.Constraint("Vertical", 42),
    Sketcher.Constraint("Horizontal", 43),
    Sketcher.Constraint("Vertical", 44),
    Sketcher.Constraint("Horizontal", 45),
    Sketcher.Constraint("Vertical", 46),
    Sketcher.Constraint("Horizontal", 47),
    Sketcher.Constraint("Vertical", 48),
    Sketcher.Constraint("Horizontal", 49),
    Sketcher.Constraint("Vertical", 50),
    Sketcher.Constraint("Horizontal", 51),
    Sketcher.Constraint("Vertical", 52),
    Sketcher.Constraint("Horizontal", 53),
    Sketcher.Constraint("Vertical", 54),
    Sketcher.Constraint("Horizontal", 55),
    Sketcher.Constraint("Vertical", 56),
    Sketcher.Constraint("Horizontal", 57),
    Sketcher.Constraint("Vertical", 58),
    Sketcher.Constraint("Horizontal", 59),
    Sketcher.Constraint("Vertical", 60),
    Sketcher.Constraint("Horizontal", 61),
    Sketcher.Constraint("Vertical", 62),
    Sketcher.Constraint("Horizontal", 63),
    Sketcher.Constraint("Horizontal", 11, 2, 50, 2),
    Sketcher.Constraint("Horizontal", 49, 2, 52, 2),
    Sketcher.Constraint("Horizontal", 51, 2, 54, 2),
    Sketcher.Constraint("Vertical", 3, 2, 4, 2),
    Sketcher.Constraint("Vertical", 2, 2, 5, 2),
    Sketcher.Constraint("Vertical", 7, 2, 8, 2),
    Sketcher.Constraint("Vertical", 6, 2, 9, 2),
    Sketcher.Constraint("Vertical", 11, 2, 12, 2),
    Sketcher.Constraint("Vertical", 10, 2, 13, 2),
    Sketcher.Constraint("Vertical", 15, 2, 16, 2),
    Sketcher.Constraint("Vertical", 14, 2, 17, 2),
    Sketcher.Constraint("Vertical", 19, 2, 20, 2),
    Sketcher.Constraint("Vertical", 18, 2, 21, 2),
    Sketcher.Constraint("Vertical", 23, 2, 24, 2),
    Sketcher.Constraint("Vertical", 22, 2, 25, 2),
    Sketcher.Constraint("Vertical", 27, 2, 28, 2),
    Sketcher.Constraint("Vertical", 26, 2, 29, 2),
    Sketcher.Constraint("Vertical", 31, 2, 32, 2),
    Sketcher.Constraint("Vertical", 30, 2, 33, 2),
    Sketcher.Constraint("Vertical", 35, 2, 36, 2),
    Sketcher.Constraint("Vertical", 34, 2, 37, 2),
    Sketcher.Constraint("Vertical", 39, 2, 40, 2),
    Sketcher.Constraint("Vertical", 38, 2, 41, 2),
    Sketcher.Constraint("Vertical", 43, 2, 44, 2),
    Sketcher.Constraint("Vertical", 42, 2, 45, 2),
    Sketcher.Constraint("Vertical", 59, 2, 60, 2),
    Sketcher.Constraint("Vertical", 58, 2, 61, 2),
    Sketcher.Constraint("Equal", 51, 53),
    Sketcher.Constraint("Equal", 2, 4),
    Sketcher.Constraint("Equal", 6, 8),
    Sketcher.Constraint("Equal", 10, 12),
    Sketcher.Constraint("Equal", 14, 16),
    Sketcher.Constraint("Equal", 18, 20),
    Sketcher.Constraint("Equal", 22, 24),
    Sketcher.Constraint("Equal", 26, 28),
    Sketcher.Constraint("Equal", 30, 32),
    Sketcher.Constraint("Equal", 34, 36),
    Sketcher.Constraint("Equal", 38, 40),
    Sketcher.Constraint("Equal", 42, 44),
    Sketcher.Constraint("Equal", 58, 60),
    Sketcher.Constraint("DistanceY", 56, 2, 56, 1, 3.552801),
    Sketcher.Constraint("DistanceX", -1, 1, 0, 2, 104.041999),
    Sketcher.Constraint("DistanceX", 1, 2, 1, 1, 51.923492),
    Sketcher.Constraint("DistanceX", 57, 2, 57, 1, 35.311441),
    Sketcher.Constraint("DistanceY", -1, 1, 2, 2, 91.454702),
    Sketcher.Constraint("DistanceY", -1, 1, 6, 2, 96.454702),
    Sketcher.Constraint("DistanceY", -1, 1, 10, 2, 86.454702),
    Sketcher.Constraint("DistanceY", -1, 1, 14, 2, 81.454702),
    Sketcher.Constraint("DistanceY", -1, 1, 18, 2, 76.454702),
    Sketcher.Constraint("DistanceY", -1, 1, 22, 2, 71.454702),
    Sketcher.Constraint("DistanceY", -1, 1, 26, 2, 66.454702),
    Sketcher.Constraint("DistanceY", -1, 1, 30, 2, 61.454702),
    Sketcher.Constraint("DistanceY", -1, 1, 34, 2, 56.454702),
    Sketcher.Constraint("DistanceY", -1, 1, 38, 2, 51.454702),
    Sketcher.Constraint("DistanceY", -1, 1, 42, 2, 46.454702),
    Sketcher.Constraint("DistanceY", -1, 1, 46, 2, 41.454702),
    Sketcher.Constraint("DistanceX", -1, 1, 57, 2, 59.309898),
    Sketcher.Constraint("DistanceY", -1, 1, 62, 2, 36.231699),
    Sketcher.Constraint("DistanceX", 49, 2, 49, 1, 1.706106),
    Sketcher.Constraint("DistanceY", 0, 2, 0, 1, 2.813206),
    Sketcher.Constraint("DistanceY", 48, 2, 48, 1, 39.950466),
    Sketcher.Constraint("DistanceX", -1, 1, 48, 2, 110.55912),
    Sketcher.Constraint("DistanceX", -1, 1, 53, 2, 45.755941),
    Sketcher.Constraint("DistanceY", -1, 1, 56, 2, 99.283219),
])
pocket4 = body.newObject("PartDesign::Pocket", "Pocket003")
pocket4.Profile = sketch6
pocket4.Length = 10
pocket4.Reversed = True

doc.recompute()
